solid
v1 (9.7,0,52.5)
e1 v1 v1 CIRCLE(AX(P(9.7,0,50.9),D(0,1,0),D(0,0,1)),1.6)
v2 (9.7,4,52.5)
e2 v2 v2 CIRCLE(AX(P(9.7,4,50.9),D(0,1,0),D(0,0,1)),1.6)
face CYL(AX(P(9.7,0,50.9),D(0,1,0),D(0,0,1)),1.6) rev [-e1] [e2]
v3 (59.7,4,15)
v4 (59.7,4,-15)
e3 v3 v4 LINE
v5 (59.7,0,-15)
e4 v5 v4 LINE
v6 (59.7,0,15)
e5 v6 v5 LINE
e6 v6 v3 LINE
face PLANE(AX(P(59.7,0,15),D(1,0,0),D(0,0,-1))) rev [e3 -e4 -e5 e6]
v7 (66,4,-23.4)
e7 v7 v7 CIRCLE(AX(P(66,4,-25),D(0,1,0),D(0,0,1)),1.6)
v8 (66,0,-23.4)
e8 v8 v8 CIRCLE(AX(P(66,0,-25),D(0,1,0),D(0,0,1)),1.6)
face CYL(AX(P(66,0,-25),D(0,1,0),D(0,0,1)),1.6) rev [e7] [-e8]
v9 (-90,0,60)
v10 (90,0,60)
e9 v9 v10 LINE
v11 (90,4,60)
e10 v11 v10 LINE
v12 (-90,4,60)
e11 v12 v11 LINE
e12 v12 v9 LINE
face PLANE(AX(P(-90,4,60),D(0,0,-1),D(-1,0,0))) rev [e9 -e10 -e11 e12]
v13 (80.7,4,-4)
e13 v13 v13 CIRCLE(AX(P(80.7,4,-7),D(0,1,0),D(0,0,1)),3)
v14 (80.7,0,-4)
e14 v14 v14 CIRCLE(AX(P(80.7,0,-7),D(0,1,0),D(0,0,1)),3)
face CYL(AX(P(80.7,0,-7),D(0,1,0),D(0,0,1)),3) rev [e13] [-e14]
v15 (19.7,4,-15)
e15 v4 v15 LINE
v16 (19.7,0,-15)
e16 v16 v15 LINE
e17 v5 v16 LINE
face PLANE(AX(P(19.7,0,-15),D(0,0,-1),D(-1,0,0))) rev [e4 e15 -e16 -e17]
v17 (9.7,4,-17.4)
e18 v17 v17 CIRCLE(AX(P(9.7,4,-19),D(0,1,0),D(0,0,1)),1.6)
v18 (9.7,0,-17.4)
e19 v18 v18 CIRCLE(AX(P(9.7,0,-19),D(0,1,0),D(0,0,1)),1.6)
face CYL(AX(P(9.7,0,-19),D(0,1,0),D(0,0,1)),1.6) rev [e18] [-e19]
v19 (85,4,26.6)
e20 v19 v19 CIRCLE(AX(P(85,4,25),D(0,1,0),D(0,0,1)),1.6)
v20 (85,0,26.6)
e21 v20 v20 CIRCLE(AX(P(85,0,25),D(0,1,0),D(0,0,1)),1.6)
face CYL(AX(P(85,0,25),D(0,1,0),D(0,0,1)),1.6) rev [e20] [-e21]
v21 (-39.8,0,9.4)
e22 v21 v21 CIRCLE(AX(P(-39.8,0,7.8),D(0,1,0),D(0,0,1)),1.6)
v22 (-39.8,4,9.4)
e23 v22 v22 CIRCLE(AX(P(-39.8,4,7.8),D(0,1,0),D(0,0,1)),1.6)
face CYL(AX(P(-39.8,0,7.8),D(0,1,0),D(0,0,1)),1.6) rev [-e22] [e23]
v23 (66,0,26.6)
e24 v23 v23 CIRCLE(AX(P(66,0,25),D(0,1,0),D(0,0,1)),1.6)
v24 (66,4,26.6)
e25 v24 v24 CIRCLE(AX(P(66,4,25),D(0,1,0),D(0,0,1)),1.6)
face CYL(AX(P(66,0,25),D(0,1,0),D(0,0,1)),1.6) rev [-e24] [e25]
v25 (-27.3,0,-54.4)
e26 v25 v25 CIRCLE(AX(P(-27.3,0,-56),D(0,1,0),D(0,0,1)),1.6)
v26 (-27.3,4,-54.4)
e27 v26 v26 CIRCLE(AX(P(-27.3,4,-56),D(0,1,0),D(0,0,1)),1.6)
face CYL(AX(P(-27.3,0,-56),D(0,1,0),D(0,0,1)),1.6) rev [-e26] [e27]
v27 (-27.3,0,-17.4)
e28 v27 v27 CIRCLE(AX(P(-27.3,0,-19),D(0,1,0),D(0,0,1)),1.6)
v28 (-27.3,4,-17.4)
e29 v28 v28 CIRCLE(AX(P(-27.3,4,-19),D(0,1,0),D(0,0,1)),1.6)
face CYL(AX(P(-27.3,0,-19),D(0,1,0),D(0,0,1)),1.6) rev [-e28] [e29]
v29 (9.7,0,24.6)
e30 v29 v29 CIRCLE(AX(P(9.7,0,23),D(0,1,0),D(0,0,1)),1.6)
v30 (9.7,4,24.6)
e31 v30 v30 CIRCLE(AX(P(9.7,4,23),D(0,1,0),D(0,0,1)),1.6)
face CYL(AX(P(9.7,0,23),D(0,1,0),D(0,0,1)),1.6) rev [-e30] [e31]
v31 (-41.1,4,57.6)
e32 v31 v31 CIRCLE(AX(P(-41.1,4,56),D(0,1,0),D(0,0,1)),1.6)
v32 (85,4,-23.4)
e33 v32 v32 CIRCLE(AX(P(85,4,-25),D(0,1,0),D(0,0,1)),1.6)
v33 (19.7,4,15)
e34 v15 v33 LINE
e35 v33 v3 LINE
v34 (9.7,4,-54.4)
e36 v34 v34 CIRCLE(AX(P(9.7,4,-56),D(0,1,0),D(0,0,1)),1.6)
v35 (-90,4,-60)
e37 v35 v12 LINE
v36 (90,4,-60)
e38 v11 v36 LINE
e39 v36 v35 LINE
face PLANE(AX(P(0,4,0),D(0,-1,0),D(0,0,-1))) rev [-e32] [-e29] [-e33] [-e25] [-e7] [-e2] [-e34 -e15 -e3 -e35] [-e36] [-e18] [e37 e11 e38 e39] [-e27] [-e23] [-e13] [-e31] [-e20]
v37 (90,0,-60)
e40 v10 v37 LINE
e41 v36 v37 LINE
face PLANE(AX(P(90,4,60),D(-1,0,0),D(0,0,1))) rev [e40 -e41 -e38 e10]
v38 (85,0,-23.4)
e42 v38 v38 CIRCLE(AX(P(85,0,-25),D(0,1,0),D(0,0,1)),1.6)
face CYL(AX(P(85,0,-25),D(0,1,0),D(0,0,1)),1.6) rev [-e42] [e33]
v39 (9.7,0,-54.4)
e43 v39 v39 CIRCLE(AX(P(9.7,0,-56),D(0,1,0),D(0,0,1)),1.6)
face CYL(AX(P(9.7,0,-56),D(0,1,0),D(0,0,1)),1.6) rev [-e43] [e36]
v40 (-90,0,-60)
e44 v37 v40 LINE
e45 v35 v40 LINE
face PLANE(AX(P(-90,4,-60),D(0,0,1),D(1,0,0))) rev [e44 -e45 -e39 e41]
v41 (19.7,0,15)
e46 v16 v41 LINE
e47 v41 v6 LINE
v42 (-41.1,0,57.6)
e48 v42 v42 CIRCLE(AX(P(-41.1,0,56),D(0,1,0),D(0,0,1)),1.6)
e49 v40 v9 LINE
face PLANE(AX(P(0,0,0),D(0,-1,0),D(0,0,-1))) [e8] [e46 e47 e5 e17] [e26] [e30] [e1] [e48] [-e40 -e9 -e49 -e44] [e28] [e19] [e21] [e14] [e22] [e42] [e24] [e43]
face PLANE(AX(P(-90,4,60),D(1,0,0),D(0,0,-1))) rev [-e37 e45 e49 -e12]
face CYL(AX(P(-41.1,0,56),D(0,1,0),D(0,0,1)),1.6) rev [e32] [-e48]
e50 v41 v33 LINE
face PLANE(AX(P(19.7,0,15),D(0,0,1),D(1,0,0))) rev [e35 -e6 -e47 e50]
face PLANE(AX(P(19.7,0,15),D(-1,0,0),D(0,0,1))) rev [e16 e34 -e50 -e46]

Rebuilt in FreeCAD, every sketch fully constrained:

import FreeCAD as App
import Part
import Sketcher
Q = App.Units.Quantity


def add_polygon(sketch, points):
    """Adds a closed chain of lines whose ends are joined by coincident constraints."""
    first, n = sketch.GeometryCount, len(points)
    for a, b in zip(points, points[1:] + points[:1]):
        sketch.addGeometry(Part.LineSegment(App.Vector(*a, 0), App.Vector(*b, 0)), False)
    for i in range(n):
        sketch.addConstraint(Sketcher.Constraint("Coincident", first + i, 2, first + (i + 1) % n, 1))

doc = App.newDocument("Part")
body = doc.addObject("PartDesign::Body", "Body")

# Sketch on XZ plane
sketch1 = doc.addObject("Sketcher::SketchObject", "Sketch")
body.addObject(sketch1)
sketch1.AttachmentSupport = (doc.XZ_Plane, [""])
sketch1.MapMode = "FlatFace"
add_polygon(sketch1, [(-90, -60), (-90, 60), (90, 60), (90, -60)])  # lines 0-3
sketch1.addConstraint([
    Sketcher.Constraint("Vertical", 0),
    Sketcher.Constraint("Horizontal", 1),
    Sketcher.Constraint("Vertical", 2),
    Sketcher.Constraint("Horizontal", 3),
    Sketcher.Constraint("Symmetric", 0, 2, 2, 2, -1, 1),
    Sketcher.Constraint("DistanceX", 1, 1, 1, 2, Q("180 mm")),
    Sketcher.Constraint("DistanceY", 0, 1, 0, 2, Q("120 mm")),
])
pad1 = doc.addObject("PartDesign::Pad", "Pad")
body.addObject(pad1)
pad1.Profile = sketch1
pad1.Length = 4
pad1.Reversed = True

# Sketch on XZ plane
sketch2 = doc.addObject("Sketcher::SketchObject", "Sketch001")
body.addObject(sketch2)
sketch2.AttachmentSupport = (doc.XZ_Plane, [""])
sketch2.MapMode = "FlatFace"
sketch2.AttachmentOffset = App.Placement(App.Vector(0, 0, -4), App.Rotation())
sketch2.addGeometry([
    Part.Circle(App.Vector(66, -25, 0), App.Vector(0, 0, 1), 1.6),  # 0
    Part.Circle(App.Vector(66, 25, 0), App.Vector(0, 0, 1), 1.6),  # 1
    Part.Circle(App.Vector(85, 25, 0), App.Vector(0, 0, 1), 1.6),  # 2
    Part.Circle(App.Vector(85, -25, 0), App.Vector(0, 0, 1), 1.6),  # 3
    Part.Circle(App.Vector(80.7, -7, 0), App.Vector(0, 0, 1), 3),  # 4
], False)
sketch2.addConstraint([
    Sketcher.Constraint("Equal", 0, 1),
    Sketcher.Constraint("Equal", 1, 2),
    Sketcher.Constraint("Equal", 2, 3),
    Sketcher.Constraint("Symmetric", 0, 3, 1, 3, -1),
    Sketcher.Constraint("Symmetric", 2, 3, 3, 3, -1),
    Sketcher.Constraint("Horizontal", 1, 3, 2, 3),
    Sketcher.Constraint("Diameter", 4, Q("6 mm")),
    Sketcher.Constraint("Diameter", 0, Q("3.2 mm")),
    Sketcher.Constraint("DistanceX", -1, 1, 0, 3, Q("66 mm")),
    Sketcher.Constraint("DistanceY", 0, 3, -1, 1, Q("25 mm")),
    Sketcher.Constraint("DistanceX", -1, 1, 2, 3, Q("85 mm")),
    Sketcher.Constraint("DistanceY", 4, 3, -1, 1, Q("7 mm")),
    Sketcher.Constraint("DistanceX", -1, 1, 4, 3, Q("80.7 mm")),
])
pocket1 = doc.addObject("PartDesign::Pocket", "Pocket")
body.addObject(pocket1)
pocket1.Profile = sketch2
pocket1.Length = 4
pocket1.Reversed = True

# Sketch on XZ plane
sketch3 = doc.addObject("Sketcher::SketchObject", "Sketch002")
body.addObject(sketch3)
sketch3.AttachmentSupport = (doc.XZ_Plane, [""])
sketch3.MapMode = "FlatFace"
sketch3.AttachmentOffset = App.Placement(App.Vector(0, 0, -4), App.Rotation())
add_polygon(sketch3, [(20, -15), (20, 15), (60, 15), (60, -15)])  # lines 0-3
sketch3.addConstraint([
    Sketcher.Constraint("Vertical", 0),
    Sketcher.Constraint("Horizontal", 1),
    Sketcher.Constraint("Vertical", 2),
    Sketcher.Constraint("Horizontal", 3),
    Sketcher.Constraint("DistanceX", 1, 1, 1, 2, Q("40 mm")),
    Sketcher.Constraint("DistanceY", 0, 1, 0, 2, Q("30 mm")),
    Sketcher.Constraint("DistanceY", -1, 1, 0, 2, Q("15 mm")),
    Sketcher.Constraint("DistanceX", -1, 1, 0, 2, Q("19.7 mm")),
])
pocket2 = doc.addObject("PartDesign::Pocket", "Pocket001")
body.addObject(pocket2)
pocket2.Profile = sketch3
pocket2.Length = 4
pocket2.Reversed = True

# Sketch on XZ plane
sketch4 = doc.addObject("Sketcher::SketchObject", "Sketch003")
body.addObject(sketch4)
sketch4.AttachmentSupport = (doc.XZ_Plane, [""])
sketch4.MapMode = "FlatFace"
sketch4.AttachmentOffset = App.Placement(App.Vector(0, 0, -4), App.Rotation())
sketch4.addGeometry([
    Part.Circle(App.Vector(-27.3, -56, 0), App.Vector(0, 0, 1), 1.6),
    Part.Circle(App.Vector(9.7, -56, 0), App.Vector(0, 0, 1), 1.6),
    Part.Circle(App.Vector(9.7, -19, 0), App.Vector(0, 0, 1), 1.6),
    Part.Circle(App.Vector(-27.3, -19, 0), App.Vector(0, 0, 1), 1.6),
], False)
sketch4.addConstraint([
    Sketcher.Constraint("Equal", 0, 1),
    Sketcher.Constraint("Equal", 1, 2),
    Sketcher.Constraint("Equal", 2, 3),
    Sketcher.Constraint("Horizontal", 0, 3, 1, 3),
    Sketcher.Constraint("Horizontal", 2, 3, 3, 3),
    Sketcher.Constraint("Vertical", 1, 3, 2, 3),
    Sketcher.Constraint("Vertical", 0, 3, 3, 3),
    Sketcher.Constraint("Diameter", 0, Q("3.2 mm")),
    Sketcher.Constraint("DistanceY", 0, 3, -1, 1, Q("56 mm")),
    Sketcher.Constraint("DistanceY", 2, 3, -1, 1, Q("19 mm")),
    Sketcher.Constraint("DistanceX", 0, 3, 1, 3, Q("37 mm")),
    Sketcher.Constraint("DistanceX", 0, 3, -1, 1, Q("27.3 mm")),
])
pocket3 = doc.addObject("PartDesign::Pocket", "Pocket002")
body.addObject(pocket3)
pocket3.Profile = sketch4
pocket3.Length = 4
pocket3.Reversed = True

# Sketch on XZ plane
sketch5 = doc.addObject("Sketcher::SketchObject", "Sketch004")
body.addObject(sketch5)
sketch5.AttachmentSupport = (doc.XZ_Plane, [""])
sketch5.MapMode = "FlatFace"
sketch5.AttachmentOffset = App.Placement(App.Vector(0, 0, -4), App.Rotation())
sketch5.addGeometry([
    Part.Circle(App.Vector(-39.8, 7.8, 0), App.Vector(0, 0, 1), 1.6),
    Part.Circle(App.Vector(9.7, 23, 0), App.Vector(0, 0, 1), 1.6),
    Part.Circle(App.Vector(9.7, 50.9, 0), App.Vector(0, 0, 1), 1.6),
    Part.Circle(App.Vector(-41.1, 56, 0), App.Vector(0, 0, 1), 1.6),
], False)
sketch5.addConstraint([
    Sketcher.Constraint("Equal", 0, 1),
    Sketcher.Constraint("Equal", 1, 2),
    Sketcher.Constraint("Equal", 2, 3),
    Sketcher.Constraint("Vertical", 1, 3, 2, 3),
    Sketcher.Constraint("Diameter", 0, Q("3.2 mm")),
    Sketcher.Constraint("DistanceY", -1, 1, 1, 3, Q("23 mm")),
    Sketcher.Constraint("DistanceY", -1, 1, 3, 3, Q("56 mm")),
    Sketcher.Constraint("DistanceX", 0, 3, -1, 1, Q("39.8 mm")),
    Sketcher.Constraint("DistanceY", -1, 1, 0, 3, Q("7.8 mm")),
    Sketcher.Constraint("DistanceX", -1, 1, 1, 3, Q("9.7 mm")),
    Sketcher.Constraint("DistanceY", -1, 1, 2, 3, Q("50.9 mm")),
    Sketcher.Constraint("DistanceX", 3, 3, -1, 1, Q("41.1 mm")),
])
pocket4 = doc.addObject("PartDesign::Pocket", "Pocket003")
body.addObject(pocket4)
pocket4.Profile = sketch5
pocket4.Length = 4
pocket4.Reversed = True

doc.recompute()
